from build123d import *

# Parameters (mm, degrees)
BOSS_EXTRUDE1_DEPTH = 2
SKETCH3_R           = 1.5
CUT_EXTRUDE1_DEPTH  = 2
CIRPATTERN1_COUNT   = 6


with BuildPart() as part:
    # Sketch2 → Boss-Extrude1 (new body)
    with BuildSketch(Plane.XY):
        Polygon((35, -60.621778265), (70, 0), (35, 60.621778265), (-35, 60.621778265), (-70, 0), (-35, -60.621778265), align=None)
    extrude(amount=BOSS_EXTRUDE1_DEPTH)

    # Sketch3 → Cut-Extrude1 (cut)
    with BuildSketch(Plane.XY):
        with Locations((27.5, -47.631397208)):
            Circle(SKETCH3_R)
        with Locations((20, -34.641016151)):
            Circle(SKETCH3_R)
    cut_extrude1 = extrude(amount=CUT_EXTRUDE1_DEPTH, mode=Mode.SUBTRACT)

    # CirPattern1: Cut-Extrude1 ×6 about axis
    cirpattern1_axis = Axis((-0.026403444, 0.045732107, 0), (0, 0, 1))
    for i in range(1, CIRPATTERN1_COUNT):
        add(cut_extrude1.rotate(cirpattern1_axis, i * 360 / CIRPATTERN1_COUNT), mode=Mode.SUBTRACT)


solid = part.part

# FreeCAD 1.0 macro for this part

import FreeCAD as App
import Part
import Sketcher
from FreeCAD import Vector
Q = App.Units.Quantity


def add_polygon(sketch, points):
    """Adds a closed chain of lines whose ends are joined by coincident constraints."""
    first, n = sketch.GeometryCount, len(points)
    for a, b in zip(points, points[1:] + points[:1]):
        sketch.addGeometry(Part.LineSegment(App.Vector(*a, 0), App.Vector(*b, 0)), False)
    for i in range(n):
        sketch.addConstraint(Sketcher.Constraint("Coincident", first + i, 2, first + (i + 1) % n, 1))

doc = App.newDocument("Part")
params = doc.addObject("Spreadsheet::Sheet", "Params")
for row, (alias, value) in enumerate([
    ("sketch1_width", "70 mm"),
    ("sketch1_length", "70 mm"),
    ("pad1_length", "2 mm"),
    ("sketch2_diameter", "3 mm"),
    ("pocket1_length", "2 mm"),
], start=1):
    params.set(f"A{row}", alias)
    params.set(f"B{row}", "=" + value)
    params.setAlias(f"B{row}", alias)

body = doc.addObject("PartDesign::Body", "Body")

# Sketch on XY plane
sketch1 = body.newObject("Sketcher::SketchObject", "Sketch")
sketch1.AttachmentSupport = (doc.getObject("XY_Plane"), [""])
sketch1.MapMode = "FlatFace"
add_polygon(sketch1, [(35, -60.621778), (70, 0), (35, 60.621778), (-35, 60.621778), (-70, 0), (-35, -60.621778)])  # lines 0-5
sketch1.addConstraint(Sketcher.Constraint("Horizontal", 2))
sketch1.addConstraint(Sketcher.Constraint("Horizontal", 5))
sketch1.addConstraint(Sketcher.Constraint("Symmetric", 0, 2, 3, 2, -1, 1))
sketch1.addConstraint(Sketcher.Constraint("Symmetric", 1, 2, 4, 2, -1, 1))
sketch1.addConstraint(Sketcher.Constraint("PointOnObject", 0, 2, -1))
sketch1.addConstraint(Sketcher.Constraint("Parallel", 0, 3))
sketch1.addConstraint(Sketcher.Constraint("Vertical", 2, 2, 4, 2))
sketch1.addConstraint(Sketcher.Constraint("DistanceX", 2, 2, 2, 1, 70.0))
sketch1.addConstraint(Sketcher.Constraint("Angle", 0, Q("60 deg")))
sketch1.addConstraint(Sketcher.Constraint("Distance", 0, 70.0))
sketch1.setExpression("Constraints[13]", "Params.sketch1_width")
sketch1.setExpression("Constraints[15]", "Params.sketch1_length")
pad1 = body.newObject("PartDesign::Pad", "Pad")
pad1.Profile = sketch1
pad1.setExpression("Length", "Params.pad1_length")

# Sketch on XY plane
sketch2 = body.newObject("Sketcher::SketchObject", "Sketch001")
sketch2.AttachmentSupport = (doc.getObject("XY_Plane"), [""])
sketch2.MapMode = "FlatFace"
sketch2.addGeometry(Part.Circle(Vector(27.5, -47.631397, 0), Vector(0, 0, 1), 1.5), False)
sketch2.addGeometry(Part.Circle(Vector(20, -34.641016, 0), Vector(0, 0, 1), 1.5), False)
sketch2.addConstraint(Sketcher.Constraint("Equal", 0, 1))
sketch2.addConstraint(Sketcher.Constraint("Diameter", 0, 3.0))
sketch2.addConstraint(Sketcher.Constraint("DistanceX", -1, 1, 1, 3, 20.0))
sketch2.addConstraint(Sketcher.Constraint("DistanceX", -1, 1, 0, 3, 27.5))
sketch2.addConstraint(Sketcher.Constraint("DistanceY", 0, 3, 1, 3, 12.990381))
sketch2.addConstraint(Sketcher.Constraint("DistanceY", 0, 3, -1, 1, 47.631397))
sketch2.setExpression("Constraints[1]", "Params.sketch2_diameter")
pocket1 = body.newObject("PartDesign::Pocket", "Pocket")
pocket1.Profile = sketch2
pocket1.setExpression("Length", "Params.pocket1_length")
pocket1.Reversed = True
doc.recompute()

datumline = body.newObject("PartDesign::Line", "DatumLine")
datumline.Placement = App.Placement(Vector(-0.026403, 0.045732, 0), App.Rotation(Vector(0, 0, 1), Vector(0, 0, 1)))
polarpattern = body.newObject("PartDesign::PolarPattern", "PolarPattern")
polarpattern.Originals = [pocket1]
polarpattern.Axis = (datumline, [""])
polarpattern.Angle = 360
polarpattern.Occurrences = 6
body.Tip = polarpattern

doc.recompute()
